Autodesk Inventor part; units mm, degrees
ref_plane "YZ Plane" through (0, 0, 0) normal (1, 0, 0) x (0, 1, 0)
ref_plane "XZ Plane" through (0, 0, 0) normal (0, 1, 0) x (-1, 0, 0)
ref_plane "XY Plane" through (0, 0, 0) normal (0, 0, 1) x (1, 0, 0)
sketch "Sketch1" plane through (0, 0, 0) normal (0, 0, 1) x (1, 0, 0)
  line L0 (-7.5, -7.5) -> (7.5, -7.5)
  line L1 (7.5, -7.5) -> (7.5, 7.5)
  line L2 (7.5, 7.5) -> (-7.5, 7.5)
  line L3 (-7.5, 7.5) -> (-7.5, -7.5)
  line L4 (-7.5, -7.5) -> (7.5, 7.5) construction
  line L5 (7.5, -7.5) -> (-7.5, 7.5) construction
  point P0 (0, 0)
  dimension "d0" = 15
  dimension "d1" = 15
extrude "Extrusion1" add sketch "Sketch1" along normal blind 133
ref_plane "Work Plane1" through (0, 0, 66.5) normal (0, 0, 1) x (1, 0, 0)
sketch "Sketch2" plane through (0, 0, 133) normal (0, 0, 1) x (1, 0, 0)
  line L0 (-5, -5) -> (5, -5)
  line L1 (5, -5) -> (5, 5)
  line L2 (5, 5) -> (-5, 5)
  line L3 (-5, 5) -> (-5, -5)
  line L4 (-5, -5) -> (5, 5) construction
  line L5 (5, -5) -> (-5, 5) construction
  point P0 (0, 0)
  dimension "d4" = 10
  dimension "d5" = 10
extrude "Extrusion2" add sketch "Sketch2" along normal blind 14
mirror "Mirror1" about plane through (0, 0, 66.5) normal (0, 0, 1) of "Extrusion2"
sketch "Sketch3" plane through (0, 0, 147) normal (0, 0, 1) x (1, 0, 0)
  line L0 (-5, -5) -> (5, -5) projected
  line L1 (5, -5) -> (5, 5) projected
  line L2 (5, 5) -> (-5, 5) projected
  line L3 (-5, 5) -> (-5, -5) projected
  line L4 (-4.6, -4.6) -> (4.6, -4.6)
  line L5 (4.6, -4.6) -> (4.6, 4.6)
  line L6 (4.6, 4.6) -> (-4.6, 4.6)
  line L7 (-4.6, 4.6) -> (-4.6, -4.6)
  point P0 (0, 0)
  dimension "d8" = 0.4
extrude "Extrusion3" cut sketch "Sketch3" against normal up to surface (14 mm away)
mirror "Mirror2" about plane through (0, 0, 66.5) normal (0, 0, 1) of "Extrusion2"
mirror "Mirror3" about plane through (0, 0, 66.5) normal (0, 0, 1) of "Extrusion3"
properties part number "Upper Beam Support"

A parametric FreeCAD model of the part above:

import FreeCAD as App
import Part
import Sketcher

V = App.Vector
Q = App.Units.Quantity


def add_polygon(sketch, points):
    """Adds a closed chain of lines whose ends are joined by coincident constraints."""
    first, n = sketch.GeometryCount, len(points)
    for a, b in zip(points, points[1:] + points[:1]):
        sketch.addGeometry(Part.LineSegment(App.Vector(*a, 0), App.Vector(*b, 0)), False)
    for i in range(n):
        sketch.addConstraint(Sketcher.Constraint("Coincident", first + i, 2, first + (i + 1) % n, 1))

doc = App.newDocument("Part")
body = doc.addObject("PartDesign::Body", "Body")

# Sketch on XY plane
sketch1 = body.newObject("Sketcher::SketchObject", "Sketch")
sketch1.AttachmentSupport = (doc.getObject("XY_Plane"), [""])
sketch1.MapMode = "FlatFace"
add_polygon(sketch1, [(-7.5, 7.5), (-7.5, -7.5), (7.5, -7.5), (7.5, 7.5)])  # lines 0-3
sketch1.addConstraint([
    Sketcher.Constraint("Vertical", 0),
    Sketcher.Constraint("Horizontal", 1),
    Sketcher.Constraint("Vertical", 2),
    Sketcher.Constraint("Horizontal", 3),
    Sketcher.Constraint("Symmetric", 0, 2, 2, 2, -1, 1),
    Sketcher.Constraint("Equal", 3, 0),
    Sketcher.Constraint("DistanceX", 1, 1, 1, 2, Q("15 mm")),
])
pad1 = body.newObject("PartDesign::Pad", "Pad")
pad1.Profile = sketch1
pad1.Length = 133

# Sketch on XY plane
sketch2 = body.newObject("Sketcher::SketchObject", "Sketch001")
sketch2.AttachmentSupport = (doc.getObject("XY_Plane"), [""])
sketch2.MapMode = "FlatFace"
sketch2.AttachmentOffset = App.Placement(V(0, 0, 133), App.Rotation())
add_polygon(sketch2, [(-5, 5), (-5, -5), (5, -5), (5, 5)])  # lines 0-3
sketch2.addConstraint([
    Sketcher.Constraint("Vertical", 0),
    Sketcher.Constraint("Horizontal", 1),
    Sketcher.Constraint("Vertical", 2),
    Sketcher.Constraint("Horizontal", 3),
    Sketcher.Constraint("Symmetric", 0, 2, 2, 2, -1, 1),
    Sketcher.Constraint("Equal", 3, 0),
    Sketcher.Constraint("DistanceX", 1, 1, 1, 2, Q("10 mm")),
])
pad2 = body.newObject("PartDesign::Pad", "Pad001")
pad2.Profile = sketch2
pad2.Length = 14
doc.recompute()

datumplane = body.newObject("PartDesign::Plane", "DatumPlane")
datumplane.AttachmentSupport = (doc.getObject("XY_Plane"), [""])
datumplane.MapMode = "FlatFace"
datumplane.AttachmentOffset = App.Placement(V(0, 0, 66.5), App.Rotation())
mirrored = body.newObject("PartDesign::Mirrored", "Mirrored")
mirrored.Originals = [pad2]
mirrored.MirrorPlane = (datumplane, [""])
body.Tip = mirrored

# Sketch on XY plane
sketch3 = body.newObject("Sketcher::SketchObject", "Sketch002")
sketch3.AttachmentSupport = (doc.getObject("XY_Plane"), [""])
sketch3.MapMode = "FlatFace"
sketch3.AttachmentOffset = App.Placement(V(0, 0, 147), App.Rotation())
add_polygon(sketch3, [(-5, 5), (-5, -5), (5, -5), (5, 5)])  # lines 0-3
add_polygon(sketch3, [(4.6, -4.6), (-4.6, -4.6), (-4.6, 4.6), (4.6, 4.6)])  # lines 4-7
sketch3.addConstraint([
    Sketcher.Constraint("Vertical", 0),
    Sketcher.Constraint("Horizontal", 1),
    Sketcher.Constraint("Vertical", 2),
    Sketcher.Constraint("Horizontal", 3),
    Sketcher.Constraint("Horizontal", 4),
    Sketcher.Constraint("Vertical", 5),
    Sketcher.Constraint("Horizontal", 6),
    Sketcher.Constraint("Vertical", 7),
    Sketcher.Constraint("Symmetric", 0, 2, 2, 2, -1, 1),
    Sketcher.Constraint("Symmetric", 4, 2, 6, 2, -1, 1),
    Sketcher.Constraint("Equal", 3, 0),
    Sketcher.Constraint("Equal", 6, 5),
    Sketcher.Constraint("DistanceX", 0, 2, 4, 2, Q("0.4 mm")),
    Sketcher.Constraint("DistanceX", 1, 1, 1, 2, Q("10 mm")),
])
pocket1 = body.newObject("PartDesign::Pocket", "Pocket")
pocket1.Profile = sketch3
pocket1.Length = 14
doc.recompute()

datumplane2 = body.newObject("PartDesign::Plane", "DatumPlane001")
datumplane2.AttachmentSupport = (doc.getObject("XY_Plane"), [""])
datumplane2.MapMode = "FlatFace"
datumplane2.AttachmentOffset = App.Placement(V(0, 0, 66.5), App.Rotation())
mirrored2 = body.newObject("PartDesign::Mirrored", "Mirrored001")
mirrored2.Originals = [pad2]
mirrored2.MirrorPlane = (datumplane2, [""])
body.Tip = mirrored2
doc.recompute()

datumplane3 = body.newObject("PartDesign::Plane", "DatumPlane002")
datumplane3.AttachmentSupport = (doc.getObject("XY_Plane"), [""])
datumplane3.MapMode = "FlatFace"
datumplane3.AttachmentOffset = App.Placement(V(0, 0, 66.5), App.Rotation())
mirrored3 = body.newObject("PartDesign::Mirrored", "Mirrored002")
mirrored3.Originals = [pocket1]
mirrored3.MirrorPlane = (datumplane3, [""])
body.Tip = mirrored3

doc.recompute()
